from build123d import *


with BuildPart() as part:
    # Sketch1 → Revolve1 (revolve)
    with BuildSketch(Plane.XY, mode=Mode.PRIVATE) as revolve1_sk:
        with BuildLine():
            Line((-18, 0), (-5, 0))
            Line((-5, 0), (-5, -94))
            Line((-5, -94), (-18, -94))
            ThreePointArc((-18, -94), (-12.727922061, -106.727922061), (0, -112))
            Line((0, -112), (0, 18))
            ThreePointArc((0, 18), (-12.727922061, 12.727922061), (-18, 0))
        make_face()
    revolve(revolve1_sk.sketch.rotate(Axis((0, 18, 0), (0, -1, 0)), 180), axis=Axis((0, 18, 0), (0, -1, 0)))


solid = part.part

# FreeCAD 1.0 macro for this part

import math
import FreeCAD as App
import Part
import Sketcher

doc = App.newDocument("Part")
body = doc.addObject("PartDesign::Body", "Body")

# Sketch on XY plane
sketch1 = body.newObject("Sketcher::SketchObject", "Sketch")
sketch1.AttachmentSupport = (doc.getObject("XY_Plane"), [""])
sketch1.MapMode = "FlatFace"
sketch1.addGeometry([
    Part.LineSegment(App.Vector(-18, 0, 0), App.Vector(-5, 0, 0)),  # 0
    Part.LineSegment(App.Vector(-5, 0, 0), App.Vector(-5, -94, 0)),  # 1
    Part.LineSegment(App.Vector(-5, -94, 0), App.Vector(-18, -94, 0)),  # 2
    Part.ArcOfCircle(Part.Circle(App.Vector(0, -94, 0), App.Vector(0, 0, 1), 18), math.radians(-180), math.radians(-90)),  # 3
    Part.LineSegment(App.Vector(0, -112, 0), App.Vector(0, 18, 0)),  # 4
    Part.ArcOfCircle(Part.Circle(App.Vector(0, 0, 0), App.Vector(0, 0, 1), 18), math.radians(90), math.radians(180)),  # 5
], False)
sketch1.addConstraint([
    Sketcher.Constraint("Coincident", 0, 2, 1, 1),
    Sketcher.Constraint("Coincident", 1, 2, 2, 1),
    Sketcher.Constraint("Coincident", 2, 2, 3, 1),
    Sketcher.Constraint("Coincident", 3, 2, 4, 1),
    Sketcher.Constraint("Coincident", 4, 2, 5, 1),
    Sketcher.Constraint("Coincident", 5, 2, 0, 1),
    Sketcher.Constraint("Horizontal", 0),
    Sketcher.Constraint("Vertical", 1),
    Sketcher.Constraint("Horizontal", 2),
    Sketcher.Constraint("Vertical", 4),
    Sketcher.Constraint("Coincident", 5, 3, -1, 1),
    Sketcher.Constraint("Equal", 3, 5),
    Sketcher.Constraint("PointOnObject", 3, 3, -2),
    Sketcher.Constraint("PointOnObject", 0, 2, -1),
    Sketcher.Constraint("PointOnObject", 3, 2, -2),
    Sketcher.Constraint("Horizontal", 3, 3, 1, 2),
    Sketcher.Constraint("Radius", 3, 18.0),
    Sketcher.Constraint("DistanceX", 0, 1, 0, 2, 13.0),
    Sketcher.Constraint("DistanceY", 1, 2, 1, 1, 94.0),
])
revolution = body.newObject("PartDesign::Revolution", "Revolution")
revolution.Profile = sketch1
revolution.ReferenceAxis = (sketch1, ["V_Axis"])
revolution.Angle = 360

doc.recompute()
